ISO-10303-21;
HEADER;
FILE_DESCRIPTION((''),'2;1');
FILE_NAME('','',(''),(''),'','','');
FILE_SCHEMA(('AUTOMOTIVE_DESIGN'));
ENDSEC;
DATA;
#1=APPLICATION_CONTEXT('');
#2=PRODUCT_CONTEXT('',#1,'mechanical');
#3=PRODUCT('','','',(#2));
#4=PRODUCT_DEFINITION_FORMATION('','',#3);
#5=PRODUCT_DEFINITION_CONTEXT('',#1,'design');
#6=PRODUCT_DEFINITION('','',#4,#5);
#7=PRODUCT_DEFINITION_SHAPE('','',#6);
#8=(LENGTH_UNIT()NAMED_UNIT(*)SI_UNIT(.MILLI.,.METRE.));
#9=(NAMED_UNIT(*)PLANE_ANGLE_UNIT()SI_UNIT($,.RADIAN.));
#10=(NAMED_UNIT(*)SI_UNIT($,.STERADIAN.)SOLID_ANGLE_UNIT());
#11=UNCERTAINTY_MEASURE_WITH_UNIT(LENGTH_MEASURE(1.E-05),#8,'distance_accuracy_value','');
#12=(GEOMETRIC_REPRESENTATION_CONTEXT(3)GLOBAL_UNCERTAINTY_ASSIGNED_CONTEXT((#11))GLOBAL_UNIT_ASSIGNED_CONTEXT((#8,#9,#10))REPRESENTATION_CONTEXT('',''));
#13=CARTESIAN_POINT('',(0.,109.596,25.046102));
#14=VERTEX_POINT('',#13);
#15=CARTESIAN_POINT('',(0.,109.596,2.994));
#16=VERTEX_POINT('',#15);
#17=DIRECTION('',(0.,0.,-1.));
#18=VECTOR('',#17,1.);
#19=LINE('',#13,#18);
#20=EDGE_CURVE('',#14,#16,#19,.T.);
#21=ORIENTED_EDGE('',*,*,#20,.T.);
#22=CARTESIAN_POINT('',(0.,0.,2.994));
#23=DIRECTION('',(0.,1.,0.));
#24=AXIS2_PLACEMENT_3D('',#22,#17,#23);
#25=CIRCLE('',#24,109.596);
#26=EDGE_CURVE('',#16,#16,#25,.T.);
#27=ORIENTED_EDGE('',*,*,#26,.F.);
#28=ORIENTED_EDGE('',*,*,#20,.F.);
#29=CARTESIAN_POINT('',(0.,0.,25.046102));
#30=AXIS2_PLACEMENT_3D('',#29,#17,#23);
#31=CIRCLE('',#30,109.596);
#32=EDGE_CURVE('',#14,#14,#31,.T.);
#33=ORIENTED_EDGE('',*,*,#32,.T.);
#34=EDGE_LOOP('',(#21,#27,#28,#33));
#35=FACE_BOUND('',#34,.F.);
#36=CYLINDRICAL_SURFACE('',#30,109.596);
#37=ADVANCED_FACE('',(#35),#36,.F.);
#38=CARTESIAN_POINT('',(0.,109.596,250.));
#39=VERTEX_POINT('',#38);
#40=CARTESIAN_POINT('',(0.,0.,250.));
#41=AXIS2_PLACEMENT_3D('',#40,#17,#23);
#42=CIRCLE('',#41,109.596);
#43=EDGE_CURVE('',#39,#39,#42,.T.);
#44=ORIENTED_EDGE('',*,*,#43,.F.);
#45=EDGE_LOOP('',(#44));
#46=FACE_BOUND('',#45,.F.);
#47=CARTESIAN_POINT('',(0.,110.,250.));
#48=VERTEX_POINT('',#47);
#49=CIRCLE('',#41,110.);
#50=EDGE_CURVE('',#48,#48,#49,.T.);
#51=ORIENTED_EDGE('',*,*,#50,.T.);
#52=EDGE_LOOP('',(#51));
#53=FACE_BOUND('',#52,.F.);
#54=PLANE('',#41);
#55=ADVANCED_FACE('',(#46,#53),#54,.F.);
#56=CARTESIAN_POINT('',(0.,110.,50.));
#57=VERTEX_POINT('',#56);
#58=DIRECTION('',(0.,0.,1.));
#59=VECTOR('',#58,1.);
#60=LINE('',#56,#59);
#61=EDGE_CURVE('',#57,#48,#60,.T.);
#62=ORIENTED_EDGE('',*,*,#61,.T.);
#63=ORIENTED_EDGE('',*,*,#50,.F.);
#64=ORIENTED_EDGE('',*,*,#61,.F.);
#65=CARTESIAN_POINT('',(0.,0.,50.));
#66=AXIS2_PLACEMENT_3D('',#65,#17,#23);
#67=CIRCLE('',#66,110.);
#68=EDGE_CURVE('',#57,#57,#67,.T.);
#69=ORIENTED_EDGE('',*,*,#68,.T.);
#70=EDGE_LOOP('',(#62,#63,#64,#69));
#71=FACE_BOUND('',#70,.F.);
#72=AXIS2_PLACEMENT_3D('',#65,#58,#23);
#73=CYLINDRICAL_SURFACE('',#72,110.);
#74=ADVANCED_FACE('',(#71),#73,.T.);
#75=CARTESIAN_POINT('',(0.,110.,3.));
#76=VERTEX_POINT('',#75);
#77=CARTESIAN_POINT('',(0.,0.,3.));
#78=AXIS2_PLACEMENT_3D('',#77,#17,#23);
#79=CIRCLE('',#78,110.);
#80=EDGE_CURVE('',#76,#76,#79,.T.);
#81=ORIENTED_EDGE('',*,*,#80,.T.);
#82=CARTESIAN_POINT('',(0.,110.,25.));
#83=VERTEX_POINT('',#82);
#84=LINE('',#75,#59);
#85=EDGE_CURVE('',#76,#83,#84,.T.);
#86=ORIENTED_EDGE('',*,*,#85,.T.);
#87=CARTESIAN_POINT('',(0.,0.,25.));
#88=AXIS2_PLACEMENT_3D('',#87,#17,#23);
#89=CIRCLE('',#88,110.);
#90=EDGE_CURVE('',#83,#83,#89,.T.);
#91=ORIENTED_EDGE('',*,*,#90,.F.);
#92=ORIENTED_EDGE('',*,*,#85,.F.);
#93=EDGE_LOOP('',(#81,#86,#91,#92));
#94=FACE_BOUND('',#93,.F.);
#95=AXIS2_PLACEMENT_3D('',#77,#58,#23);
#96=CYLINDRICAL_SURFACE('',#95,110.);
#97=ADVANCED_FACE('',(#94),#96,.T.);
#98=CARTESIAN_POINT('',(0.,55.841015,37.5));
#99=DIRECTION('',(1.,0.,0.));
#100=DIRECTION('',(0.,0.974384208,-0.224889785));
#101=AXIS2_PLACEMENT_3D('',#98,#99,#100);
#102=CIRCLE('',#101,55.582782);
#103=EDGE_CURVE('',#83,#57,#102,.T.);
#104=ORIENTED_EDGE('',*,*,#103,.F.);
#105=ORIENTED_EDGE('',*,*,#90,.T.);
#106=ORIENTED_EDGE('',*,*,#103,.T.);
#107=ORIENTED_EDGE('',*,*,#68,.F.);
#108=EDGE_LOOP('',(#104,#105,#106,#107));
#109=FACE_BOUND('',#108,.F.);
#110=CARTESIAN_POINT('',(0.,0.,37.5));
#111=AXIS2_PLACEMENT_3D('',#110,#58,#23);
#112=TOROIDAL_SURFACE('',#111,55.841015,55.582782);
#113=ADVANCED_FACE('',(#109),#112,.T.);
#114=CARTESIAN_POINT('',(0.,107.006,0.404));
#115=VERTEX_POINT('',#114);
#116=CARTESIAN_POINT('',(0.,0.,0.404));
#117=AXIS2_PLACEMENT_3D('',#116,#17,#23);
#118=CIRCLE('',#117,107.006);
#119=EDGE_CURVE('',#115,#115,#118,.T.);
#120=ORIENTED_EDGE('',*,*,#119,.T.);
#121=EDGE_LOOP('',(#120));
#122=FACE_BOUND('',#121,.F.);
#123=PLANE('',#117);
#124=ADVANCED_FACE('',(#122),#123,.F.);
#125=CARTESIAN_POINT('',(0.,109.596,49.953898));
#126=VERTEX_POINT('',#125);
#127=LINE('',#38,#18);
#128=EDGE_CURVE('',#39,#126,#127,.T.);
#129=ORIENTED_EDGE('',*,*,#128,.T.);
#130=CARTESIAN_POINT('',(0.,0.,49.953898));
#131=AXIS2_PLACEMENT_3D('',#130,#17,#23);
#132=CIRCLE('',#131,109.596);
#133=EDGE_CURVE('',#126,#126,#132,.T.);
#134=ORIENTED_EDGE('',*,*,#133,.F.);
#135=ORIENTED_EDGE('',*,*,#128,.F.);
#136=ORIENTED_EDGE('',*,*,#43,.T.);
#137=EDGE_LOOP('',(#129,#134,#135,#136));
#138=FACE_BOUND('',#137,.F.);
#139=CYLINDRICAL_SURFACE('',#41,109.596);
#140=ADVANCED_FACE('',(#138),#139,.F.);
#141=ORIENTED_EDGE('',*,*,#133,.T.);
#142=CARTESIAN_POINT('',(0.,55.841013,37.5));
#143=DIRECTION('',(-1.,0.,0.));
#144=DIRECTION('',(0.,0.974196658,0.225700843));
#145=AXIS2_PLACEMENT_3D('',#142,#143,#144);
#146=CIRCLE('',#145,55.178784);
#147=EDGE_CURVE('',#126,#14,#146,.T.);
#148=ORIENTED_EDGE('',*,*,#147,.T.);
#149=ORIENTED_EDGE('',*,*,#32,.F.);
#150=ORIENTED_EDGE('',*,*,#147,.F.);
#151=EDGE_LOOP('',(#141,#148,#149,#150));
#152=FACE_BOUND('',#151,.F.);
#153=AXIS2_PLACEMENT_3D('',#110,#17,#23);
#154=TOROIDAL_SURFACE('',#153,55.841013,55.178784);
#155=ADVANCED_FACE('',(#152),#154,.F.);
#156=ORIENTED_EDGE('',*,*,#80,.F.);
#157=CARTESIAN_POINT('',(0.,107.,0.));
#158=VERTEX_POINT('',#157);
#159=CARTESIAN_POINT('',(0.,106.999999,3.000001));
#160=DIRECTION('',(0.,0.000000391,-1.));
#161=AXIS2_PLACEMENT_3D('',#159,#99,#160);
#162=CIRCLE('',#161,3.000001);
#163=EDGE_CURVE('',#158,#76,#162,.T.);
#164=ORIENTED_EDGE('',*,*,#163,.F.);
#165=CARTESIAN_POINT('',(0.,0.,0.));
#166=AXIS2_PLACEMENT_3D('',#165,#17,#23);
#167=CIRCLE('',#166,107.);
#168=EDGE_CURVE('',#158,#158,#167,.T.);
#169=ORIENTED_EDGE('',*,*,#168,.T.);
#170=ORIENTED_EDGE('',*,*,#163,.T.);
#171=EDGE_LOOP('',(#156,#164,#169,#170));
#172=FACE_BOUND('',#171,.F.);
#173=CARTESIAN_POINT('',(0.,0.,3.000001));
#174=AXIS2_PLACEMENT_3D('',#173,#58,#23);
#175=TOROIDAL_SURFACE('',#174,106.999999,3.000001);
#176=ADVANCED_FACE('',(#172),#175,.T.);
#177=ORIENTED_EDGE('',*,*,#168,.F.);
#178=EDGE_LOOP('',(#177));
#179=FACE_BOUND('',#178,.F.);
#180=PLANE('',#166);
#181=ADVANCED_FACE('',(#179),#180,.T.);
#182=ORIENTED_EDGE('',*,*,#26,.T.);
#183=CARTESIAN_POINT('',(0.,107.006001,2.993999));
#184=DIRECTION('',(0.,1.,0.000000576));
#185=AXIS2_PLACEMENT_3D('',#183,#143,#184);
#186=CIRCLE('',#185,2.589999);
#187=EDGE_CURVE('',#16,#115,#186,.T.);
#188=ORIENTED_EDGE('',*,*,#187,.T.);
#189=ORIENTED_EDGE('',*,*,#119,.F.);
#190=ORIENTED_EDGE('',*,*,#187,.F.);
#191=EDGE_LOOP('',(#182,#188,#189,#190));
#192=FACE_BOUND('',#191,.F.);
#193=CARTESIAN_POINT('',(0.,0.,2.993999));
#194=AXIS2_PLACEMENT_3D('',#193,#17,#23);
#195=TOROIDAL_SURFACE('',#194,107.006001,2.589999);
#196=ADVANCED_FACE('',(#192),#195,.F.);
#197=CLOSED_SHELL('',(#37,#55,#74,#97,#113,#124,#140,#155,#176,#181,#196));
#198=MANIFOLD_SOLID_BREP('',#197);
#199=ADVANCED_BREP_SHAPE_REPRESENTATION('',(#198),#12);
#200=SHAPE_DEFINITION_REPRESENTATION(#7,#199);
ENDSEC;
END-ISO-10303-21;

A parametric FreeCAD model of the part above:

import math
import FreeCAD as App
import Part
import Sketcher
Q = App.Units.Quantity

doc = App.newDocument("Part")
params = doc.addObject("Spreadsheet::Sheet", "Params")
for row, (alias, value) in enumerate([
    ("sketch1_radius", "3.000001 mm"),
    ("sketch1_width", "107 mm"),
    ("sketch1_height", "22 mm"),
    ("sketch1_height2", "200 mm"),
    ("sketch1_radius2", "2.589999 mm"),
    ("revolution_angle", "360 deg"),
], start=1):
    params.set(f"A{row}", alias)
    params.set(f"B{row}", "=" + value)
    params.setAlias(f"B{row}", alias)

body = doc.addObject("PartDesign::Body", "Body")

# Sketch on YZ plane
sketch1 = body.newObject("Sketcher::SketchObject", "Sketch")
sketch1.AttachmentSupport = (doc.getObject("YZ_Plane"), [""])
sketch1.MapMode = "FlatFace"
sketch1.addGeometry([
    Part.LineSegment(App.Vector(0, 0.4, 0), App.Vector(0, 0, 0)),  # 0
    Part.LineSegment(App.Vector(0, 0, 0), App.Vector(107, 0, 0)),  # 1
    Part.ArcOfCircle(Part.Circle(App.Vector(107, 3, 0), App.Vector(0, 0, 1), 3), math.radians(-90), math.radians(0)),  # 2
    Part.LineSegment(App.Vector(110, 3, 0), App.Vector(110, 25, 0)),  # 3
    Part.ArcOfCircle(Part.Circle(App.Vector(55.84, 37.5, 0), App.Vector(0, 0, 1), 55.58), math.radians(-13), math.radians(13)),  # 4
    Part.LineSegment(App.Vector(110, 50, 0), App.Vector(110, 250, 0)),  # 5
    Part.LineSegment(App.Vector(110, 250, 0), App.Vector(109.6, 250, 0)),  # 6
    Part.LineSegment(App.Vector(109.6, 250, 0), App.Vector(109.6, 49.95, 0)),  # 7
    Part.ArcOfCircle(Part.Circle(App.Vector(55.84, 37.5, 0), App.Vector(0, 0, 1), 55.18), math.radians(-13), math.radians(13)),  # 8
    Part.LineSegment(App.Vector(109.6, 25.05, 0), App.Vector(109.6, 2.99, 0)),  # 9
    Part.ArcOfCircle(Part.Circle(App.Vector(107.01, 2.99, 0), App.Vector(0, 0, 1), 2.59), math.radians(-90), math.radians(0)),  # 10
    Part.LineSegment(App.Vector(107.01, 0.4, 0), App.Vector(0, 0.4, 0)),  # 11
], False)
sketch1.addConstraint([
    Sketcher.Constraint("Coincident", 0, 2, 1, 1),
    Sketcher.Constraint("Tangent", 1, 2, 2, 1),
    Sketcher.Constraint("Tangent", 2, 2, 3, 1),
    Sketcher.Constraint("Coincident", 3, 2, 4, 1),
    Sketcher.Constraint("Coincident", 4, 2, 5, 1),
    Sketcher.Constraint("Coincident", 5, 2, 6, 1),
    Sketcher.Constraint("Coincident", 6, 2, 7, 1),
    Sketcher.Constraint("Coincident", 7, 2, 8, 2),
    Sketcher.Constraint("Coincident", 8, 1, 9, 1),
    Sketcher.Constraint("Tangent", 9, 2, 10, 2),
    Sketcher.Constraint("Tangent", 10, 1, 11, 1),
    Sketcher.Constraint("Coincident", 11, 2, 0, 1),
    Sketcher.Constraint("Vertical", 0),
    Sketcher.Constraint("Horizontal", 1),
    Sketcher.Constraint("Vertical", 3),
    Sketcher.Constraint("Vertical", 5),
    Sketcher.Constraint("Horizontal", 6),
    Sketcher.Constraint("Vertical", 7),
    Sketcher.Constraint("Vertical", 9),
    Sketcher.Constraint("Horizontal", 11),
    Sketcher.Constraint("Coincident", 0, 2, -1, 1),
    Sketcher.Constraint("Coincident", 8, 3, 4, 3),
    Sketcher.Constraint("Vertical", 3, 2, 4, 2),
    Sketcher.Constraint("Vertical", 7, 2, 8, 1),
    Sketcher.Constraint("Equal", 6, 0),
    Sketcher.Constraint("Radius", 2, Q("3.000001 mm")),
    Sketcher.Constraint("DistanceX", 1, 1, 1, 2, Q("107 mm")),
    Sketcher.Constraint("DistanceY", 3, 1, 3, 2, Q("22 mm")),
    Sketcher.Constraint("DistanceY", 5, 1, 5, 2, Q("200 mm")),
    Sketcher.Constraint("Radius", 10, Q("2.589999 mm")),
    Sketcher.Constraint("DistanceY", -1, 1, 4, 2, Q("50 mm")),
    Sketcher.Constraint("DistanceX", 6, 2, 6, 1, Q("0.404 mm")),
    Sketcher.Constraint("DistanceY", 7, 2, 7, 1, Q("200.046102 mm")),
    Sketcher.Constraint("Radius", 4, Q("55.582782 mm")),
])
sketch1.setExpression("Constraints[25]", "Params.sketch1_radius")
sketch1.setExpression("Constraints[26]", "Params.sketch1_width")
sketch1.setExpression("Constraints[27]", "Params.sketch1_height")
sketch1.setExpression("Constraints[28]", "Params.sketch1_height2")
sketch1.setExpression("Constraints[29]", "Params.sketch1_radius2")
revolution = body.newObject("PartDesign::Revolution", "Revolution")
revolution.Profile = sketch1
revolution.ReferenceAxis = (sketch1, ["V_Axis"])
revolution.setExpression("Angle", "Params.revolution_angle")

doc.recompute()
